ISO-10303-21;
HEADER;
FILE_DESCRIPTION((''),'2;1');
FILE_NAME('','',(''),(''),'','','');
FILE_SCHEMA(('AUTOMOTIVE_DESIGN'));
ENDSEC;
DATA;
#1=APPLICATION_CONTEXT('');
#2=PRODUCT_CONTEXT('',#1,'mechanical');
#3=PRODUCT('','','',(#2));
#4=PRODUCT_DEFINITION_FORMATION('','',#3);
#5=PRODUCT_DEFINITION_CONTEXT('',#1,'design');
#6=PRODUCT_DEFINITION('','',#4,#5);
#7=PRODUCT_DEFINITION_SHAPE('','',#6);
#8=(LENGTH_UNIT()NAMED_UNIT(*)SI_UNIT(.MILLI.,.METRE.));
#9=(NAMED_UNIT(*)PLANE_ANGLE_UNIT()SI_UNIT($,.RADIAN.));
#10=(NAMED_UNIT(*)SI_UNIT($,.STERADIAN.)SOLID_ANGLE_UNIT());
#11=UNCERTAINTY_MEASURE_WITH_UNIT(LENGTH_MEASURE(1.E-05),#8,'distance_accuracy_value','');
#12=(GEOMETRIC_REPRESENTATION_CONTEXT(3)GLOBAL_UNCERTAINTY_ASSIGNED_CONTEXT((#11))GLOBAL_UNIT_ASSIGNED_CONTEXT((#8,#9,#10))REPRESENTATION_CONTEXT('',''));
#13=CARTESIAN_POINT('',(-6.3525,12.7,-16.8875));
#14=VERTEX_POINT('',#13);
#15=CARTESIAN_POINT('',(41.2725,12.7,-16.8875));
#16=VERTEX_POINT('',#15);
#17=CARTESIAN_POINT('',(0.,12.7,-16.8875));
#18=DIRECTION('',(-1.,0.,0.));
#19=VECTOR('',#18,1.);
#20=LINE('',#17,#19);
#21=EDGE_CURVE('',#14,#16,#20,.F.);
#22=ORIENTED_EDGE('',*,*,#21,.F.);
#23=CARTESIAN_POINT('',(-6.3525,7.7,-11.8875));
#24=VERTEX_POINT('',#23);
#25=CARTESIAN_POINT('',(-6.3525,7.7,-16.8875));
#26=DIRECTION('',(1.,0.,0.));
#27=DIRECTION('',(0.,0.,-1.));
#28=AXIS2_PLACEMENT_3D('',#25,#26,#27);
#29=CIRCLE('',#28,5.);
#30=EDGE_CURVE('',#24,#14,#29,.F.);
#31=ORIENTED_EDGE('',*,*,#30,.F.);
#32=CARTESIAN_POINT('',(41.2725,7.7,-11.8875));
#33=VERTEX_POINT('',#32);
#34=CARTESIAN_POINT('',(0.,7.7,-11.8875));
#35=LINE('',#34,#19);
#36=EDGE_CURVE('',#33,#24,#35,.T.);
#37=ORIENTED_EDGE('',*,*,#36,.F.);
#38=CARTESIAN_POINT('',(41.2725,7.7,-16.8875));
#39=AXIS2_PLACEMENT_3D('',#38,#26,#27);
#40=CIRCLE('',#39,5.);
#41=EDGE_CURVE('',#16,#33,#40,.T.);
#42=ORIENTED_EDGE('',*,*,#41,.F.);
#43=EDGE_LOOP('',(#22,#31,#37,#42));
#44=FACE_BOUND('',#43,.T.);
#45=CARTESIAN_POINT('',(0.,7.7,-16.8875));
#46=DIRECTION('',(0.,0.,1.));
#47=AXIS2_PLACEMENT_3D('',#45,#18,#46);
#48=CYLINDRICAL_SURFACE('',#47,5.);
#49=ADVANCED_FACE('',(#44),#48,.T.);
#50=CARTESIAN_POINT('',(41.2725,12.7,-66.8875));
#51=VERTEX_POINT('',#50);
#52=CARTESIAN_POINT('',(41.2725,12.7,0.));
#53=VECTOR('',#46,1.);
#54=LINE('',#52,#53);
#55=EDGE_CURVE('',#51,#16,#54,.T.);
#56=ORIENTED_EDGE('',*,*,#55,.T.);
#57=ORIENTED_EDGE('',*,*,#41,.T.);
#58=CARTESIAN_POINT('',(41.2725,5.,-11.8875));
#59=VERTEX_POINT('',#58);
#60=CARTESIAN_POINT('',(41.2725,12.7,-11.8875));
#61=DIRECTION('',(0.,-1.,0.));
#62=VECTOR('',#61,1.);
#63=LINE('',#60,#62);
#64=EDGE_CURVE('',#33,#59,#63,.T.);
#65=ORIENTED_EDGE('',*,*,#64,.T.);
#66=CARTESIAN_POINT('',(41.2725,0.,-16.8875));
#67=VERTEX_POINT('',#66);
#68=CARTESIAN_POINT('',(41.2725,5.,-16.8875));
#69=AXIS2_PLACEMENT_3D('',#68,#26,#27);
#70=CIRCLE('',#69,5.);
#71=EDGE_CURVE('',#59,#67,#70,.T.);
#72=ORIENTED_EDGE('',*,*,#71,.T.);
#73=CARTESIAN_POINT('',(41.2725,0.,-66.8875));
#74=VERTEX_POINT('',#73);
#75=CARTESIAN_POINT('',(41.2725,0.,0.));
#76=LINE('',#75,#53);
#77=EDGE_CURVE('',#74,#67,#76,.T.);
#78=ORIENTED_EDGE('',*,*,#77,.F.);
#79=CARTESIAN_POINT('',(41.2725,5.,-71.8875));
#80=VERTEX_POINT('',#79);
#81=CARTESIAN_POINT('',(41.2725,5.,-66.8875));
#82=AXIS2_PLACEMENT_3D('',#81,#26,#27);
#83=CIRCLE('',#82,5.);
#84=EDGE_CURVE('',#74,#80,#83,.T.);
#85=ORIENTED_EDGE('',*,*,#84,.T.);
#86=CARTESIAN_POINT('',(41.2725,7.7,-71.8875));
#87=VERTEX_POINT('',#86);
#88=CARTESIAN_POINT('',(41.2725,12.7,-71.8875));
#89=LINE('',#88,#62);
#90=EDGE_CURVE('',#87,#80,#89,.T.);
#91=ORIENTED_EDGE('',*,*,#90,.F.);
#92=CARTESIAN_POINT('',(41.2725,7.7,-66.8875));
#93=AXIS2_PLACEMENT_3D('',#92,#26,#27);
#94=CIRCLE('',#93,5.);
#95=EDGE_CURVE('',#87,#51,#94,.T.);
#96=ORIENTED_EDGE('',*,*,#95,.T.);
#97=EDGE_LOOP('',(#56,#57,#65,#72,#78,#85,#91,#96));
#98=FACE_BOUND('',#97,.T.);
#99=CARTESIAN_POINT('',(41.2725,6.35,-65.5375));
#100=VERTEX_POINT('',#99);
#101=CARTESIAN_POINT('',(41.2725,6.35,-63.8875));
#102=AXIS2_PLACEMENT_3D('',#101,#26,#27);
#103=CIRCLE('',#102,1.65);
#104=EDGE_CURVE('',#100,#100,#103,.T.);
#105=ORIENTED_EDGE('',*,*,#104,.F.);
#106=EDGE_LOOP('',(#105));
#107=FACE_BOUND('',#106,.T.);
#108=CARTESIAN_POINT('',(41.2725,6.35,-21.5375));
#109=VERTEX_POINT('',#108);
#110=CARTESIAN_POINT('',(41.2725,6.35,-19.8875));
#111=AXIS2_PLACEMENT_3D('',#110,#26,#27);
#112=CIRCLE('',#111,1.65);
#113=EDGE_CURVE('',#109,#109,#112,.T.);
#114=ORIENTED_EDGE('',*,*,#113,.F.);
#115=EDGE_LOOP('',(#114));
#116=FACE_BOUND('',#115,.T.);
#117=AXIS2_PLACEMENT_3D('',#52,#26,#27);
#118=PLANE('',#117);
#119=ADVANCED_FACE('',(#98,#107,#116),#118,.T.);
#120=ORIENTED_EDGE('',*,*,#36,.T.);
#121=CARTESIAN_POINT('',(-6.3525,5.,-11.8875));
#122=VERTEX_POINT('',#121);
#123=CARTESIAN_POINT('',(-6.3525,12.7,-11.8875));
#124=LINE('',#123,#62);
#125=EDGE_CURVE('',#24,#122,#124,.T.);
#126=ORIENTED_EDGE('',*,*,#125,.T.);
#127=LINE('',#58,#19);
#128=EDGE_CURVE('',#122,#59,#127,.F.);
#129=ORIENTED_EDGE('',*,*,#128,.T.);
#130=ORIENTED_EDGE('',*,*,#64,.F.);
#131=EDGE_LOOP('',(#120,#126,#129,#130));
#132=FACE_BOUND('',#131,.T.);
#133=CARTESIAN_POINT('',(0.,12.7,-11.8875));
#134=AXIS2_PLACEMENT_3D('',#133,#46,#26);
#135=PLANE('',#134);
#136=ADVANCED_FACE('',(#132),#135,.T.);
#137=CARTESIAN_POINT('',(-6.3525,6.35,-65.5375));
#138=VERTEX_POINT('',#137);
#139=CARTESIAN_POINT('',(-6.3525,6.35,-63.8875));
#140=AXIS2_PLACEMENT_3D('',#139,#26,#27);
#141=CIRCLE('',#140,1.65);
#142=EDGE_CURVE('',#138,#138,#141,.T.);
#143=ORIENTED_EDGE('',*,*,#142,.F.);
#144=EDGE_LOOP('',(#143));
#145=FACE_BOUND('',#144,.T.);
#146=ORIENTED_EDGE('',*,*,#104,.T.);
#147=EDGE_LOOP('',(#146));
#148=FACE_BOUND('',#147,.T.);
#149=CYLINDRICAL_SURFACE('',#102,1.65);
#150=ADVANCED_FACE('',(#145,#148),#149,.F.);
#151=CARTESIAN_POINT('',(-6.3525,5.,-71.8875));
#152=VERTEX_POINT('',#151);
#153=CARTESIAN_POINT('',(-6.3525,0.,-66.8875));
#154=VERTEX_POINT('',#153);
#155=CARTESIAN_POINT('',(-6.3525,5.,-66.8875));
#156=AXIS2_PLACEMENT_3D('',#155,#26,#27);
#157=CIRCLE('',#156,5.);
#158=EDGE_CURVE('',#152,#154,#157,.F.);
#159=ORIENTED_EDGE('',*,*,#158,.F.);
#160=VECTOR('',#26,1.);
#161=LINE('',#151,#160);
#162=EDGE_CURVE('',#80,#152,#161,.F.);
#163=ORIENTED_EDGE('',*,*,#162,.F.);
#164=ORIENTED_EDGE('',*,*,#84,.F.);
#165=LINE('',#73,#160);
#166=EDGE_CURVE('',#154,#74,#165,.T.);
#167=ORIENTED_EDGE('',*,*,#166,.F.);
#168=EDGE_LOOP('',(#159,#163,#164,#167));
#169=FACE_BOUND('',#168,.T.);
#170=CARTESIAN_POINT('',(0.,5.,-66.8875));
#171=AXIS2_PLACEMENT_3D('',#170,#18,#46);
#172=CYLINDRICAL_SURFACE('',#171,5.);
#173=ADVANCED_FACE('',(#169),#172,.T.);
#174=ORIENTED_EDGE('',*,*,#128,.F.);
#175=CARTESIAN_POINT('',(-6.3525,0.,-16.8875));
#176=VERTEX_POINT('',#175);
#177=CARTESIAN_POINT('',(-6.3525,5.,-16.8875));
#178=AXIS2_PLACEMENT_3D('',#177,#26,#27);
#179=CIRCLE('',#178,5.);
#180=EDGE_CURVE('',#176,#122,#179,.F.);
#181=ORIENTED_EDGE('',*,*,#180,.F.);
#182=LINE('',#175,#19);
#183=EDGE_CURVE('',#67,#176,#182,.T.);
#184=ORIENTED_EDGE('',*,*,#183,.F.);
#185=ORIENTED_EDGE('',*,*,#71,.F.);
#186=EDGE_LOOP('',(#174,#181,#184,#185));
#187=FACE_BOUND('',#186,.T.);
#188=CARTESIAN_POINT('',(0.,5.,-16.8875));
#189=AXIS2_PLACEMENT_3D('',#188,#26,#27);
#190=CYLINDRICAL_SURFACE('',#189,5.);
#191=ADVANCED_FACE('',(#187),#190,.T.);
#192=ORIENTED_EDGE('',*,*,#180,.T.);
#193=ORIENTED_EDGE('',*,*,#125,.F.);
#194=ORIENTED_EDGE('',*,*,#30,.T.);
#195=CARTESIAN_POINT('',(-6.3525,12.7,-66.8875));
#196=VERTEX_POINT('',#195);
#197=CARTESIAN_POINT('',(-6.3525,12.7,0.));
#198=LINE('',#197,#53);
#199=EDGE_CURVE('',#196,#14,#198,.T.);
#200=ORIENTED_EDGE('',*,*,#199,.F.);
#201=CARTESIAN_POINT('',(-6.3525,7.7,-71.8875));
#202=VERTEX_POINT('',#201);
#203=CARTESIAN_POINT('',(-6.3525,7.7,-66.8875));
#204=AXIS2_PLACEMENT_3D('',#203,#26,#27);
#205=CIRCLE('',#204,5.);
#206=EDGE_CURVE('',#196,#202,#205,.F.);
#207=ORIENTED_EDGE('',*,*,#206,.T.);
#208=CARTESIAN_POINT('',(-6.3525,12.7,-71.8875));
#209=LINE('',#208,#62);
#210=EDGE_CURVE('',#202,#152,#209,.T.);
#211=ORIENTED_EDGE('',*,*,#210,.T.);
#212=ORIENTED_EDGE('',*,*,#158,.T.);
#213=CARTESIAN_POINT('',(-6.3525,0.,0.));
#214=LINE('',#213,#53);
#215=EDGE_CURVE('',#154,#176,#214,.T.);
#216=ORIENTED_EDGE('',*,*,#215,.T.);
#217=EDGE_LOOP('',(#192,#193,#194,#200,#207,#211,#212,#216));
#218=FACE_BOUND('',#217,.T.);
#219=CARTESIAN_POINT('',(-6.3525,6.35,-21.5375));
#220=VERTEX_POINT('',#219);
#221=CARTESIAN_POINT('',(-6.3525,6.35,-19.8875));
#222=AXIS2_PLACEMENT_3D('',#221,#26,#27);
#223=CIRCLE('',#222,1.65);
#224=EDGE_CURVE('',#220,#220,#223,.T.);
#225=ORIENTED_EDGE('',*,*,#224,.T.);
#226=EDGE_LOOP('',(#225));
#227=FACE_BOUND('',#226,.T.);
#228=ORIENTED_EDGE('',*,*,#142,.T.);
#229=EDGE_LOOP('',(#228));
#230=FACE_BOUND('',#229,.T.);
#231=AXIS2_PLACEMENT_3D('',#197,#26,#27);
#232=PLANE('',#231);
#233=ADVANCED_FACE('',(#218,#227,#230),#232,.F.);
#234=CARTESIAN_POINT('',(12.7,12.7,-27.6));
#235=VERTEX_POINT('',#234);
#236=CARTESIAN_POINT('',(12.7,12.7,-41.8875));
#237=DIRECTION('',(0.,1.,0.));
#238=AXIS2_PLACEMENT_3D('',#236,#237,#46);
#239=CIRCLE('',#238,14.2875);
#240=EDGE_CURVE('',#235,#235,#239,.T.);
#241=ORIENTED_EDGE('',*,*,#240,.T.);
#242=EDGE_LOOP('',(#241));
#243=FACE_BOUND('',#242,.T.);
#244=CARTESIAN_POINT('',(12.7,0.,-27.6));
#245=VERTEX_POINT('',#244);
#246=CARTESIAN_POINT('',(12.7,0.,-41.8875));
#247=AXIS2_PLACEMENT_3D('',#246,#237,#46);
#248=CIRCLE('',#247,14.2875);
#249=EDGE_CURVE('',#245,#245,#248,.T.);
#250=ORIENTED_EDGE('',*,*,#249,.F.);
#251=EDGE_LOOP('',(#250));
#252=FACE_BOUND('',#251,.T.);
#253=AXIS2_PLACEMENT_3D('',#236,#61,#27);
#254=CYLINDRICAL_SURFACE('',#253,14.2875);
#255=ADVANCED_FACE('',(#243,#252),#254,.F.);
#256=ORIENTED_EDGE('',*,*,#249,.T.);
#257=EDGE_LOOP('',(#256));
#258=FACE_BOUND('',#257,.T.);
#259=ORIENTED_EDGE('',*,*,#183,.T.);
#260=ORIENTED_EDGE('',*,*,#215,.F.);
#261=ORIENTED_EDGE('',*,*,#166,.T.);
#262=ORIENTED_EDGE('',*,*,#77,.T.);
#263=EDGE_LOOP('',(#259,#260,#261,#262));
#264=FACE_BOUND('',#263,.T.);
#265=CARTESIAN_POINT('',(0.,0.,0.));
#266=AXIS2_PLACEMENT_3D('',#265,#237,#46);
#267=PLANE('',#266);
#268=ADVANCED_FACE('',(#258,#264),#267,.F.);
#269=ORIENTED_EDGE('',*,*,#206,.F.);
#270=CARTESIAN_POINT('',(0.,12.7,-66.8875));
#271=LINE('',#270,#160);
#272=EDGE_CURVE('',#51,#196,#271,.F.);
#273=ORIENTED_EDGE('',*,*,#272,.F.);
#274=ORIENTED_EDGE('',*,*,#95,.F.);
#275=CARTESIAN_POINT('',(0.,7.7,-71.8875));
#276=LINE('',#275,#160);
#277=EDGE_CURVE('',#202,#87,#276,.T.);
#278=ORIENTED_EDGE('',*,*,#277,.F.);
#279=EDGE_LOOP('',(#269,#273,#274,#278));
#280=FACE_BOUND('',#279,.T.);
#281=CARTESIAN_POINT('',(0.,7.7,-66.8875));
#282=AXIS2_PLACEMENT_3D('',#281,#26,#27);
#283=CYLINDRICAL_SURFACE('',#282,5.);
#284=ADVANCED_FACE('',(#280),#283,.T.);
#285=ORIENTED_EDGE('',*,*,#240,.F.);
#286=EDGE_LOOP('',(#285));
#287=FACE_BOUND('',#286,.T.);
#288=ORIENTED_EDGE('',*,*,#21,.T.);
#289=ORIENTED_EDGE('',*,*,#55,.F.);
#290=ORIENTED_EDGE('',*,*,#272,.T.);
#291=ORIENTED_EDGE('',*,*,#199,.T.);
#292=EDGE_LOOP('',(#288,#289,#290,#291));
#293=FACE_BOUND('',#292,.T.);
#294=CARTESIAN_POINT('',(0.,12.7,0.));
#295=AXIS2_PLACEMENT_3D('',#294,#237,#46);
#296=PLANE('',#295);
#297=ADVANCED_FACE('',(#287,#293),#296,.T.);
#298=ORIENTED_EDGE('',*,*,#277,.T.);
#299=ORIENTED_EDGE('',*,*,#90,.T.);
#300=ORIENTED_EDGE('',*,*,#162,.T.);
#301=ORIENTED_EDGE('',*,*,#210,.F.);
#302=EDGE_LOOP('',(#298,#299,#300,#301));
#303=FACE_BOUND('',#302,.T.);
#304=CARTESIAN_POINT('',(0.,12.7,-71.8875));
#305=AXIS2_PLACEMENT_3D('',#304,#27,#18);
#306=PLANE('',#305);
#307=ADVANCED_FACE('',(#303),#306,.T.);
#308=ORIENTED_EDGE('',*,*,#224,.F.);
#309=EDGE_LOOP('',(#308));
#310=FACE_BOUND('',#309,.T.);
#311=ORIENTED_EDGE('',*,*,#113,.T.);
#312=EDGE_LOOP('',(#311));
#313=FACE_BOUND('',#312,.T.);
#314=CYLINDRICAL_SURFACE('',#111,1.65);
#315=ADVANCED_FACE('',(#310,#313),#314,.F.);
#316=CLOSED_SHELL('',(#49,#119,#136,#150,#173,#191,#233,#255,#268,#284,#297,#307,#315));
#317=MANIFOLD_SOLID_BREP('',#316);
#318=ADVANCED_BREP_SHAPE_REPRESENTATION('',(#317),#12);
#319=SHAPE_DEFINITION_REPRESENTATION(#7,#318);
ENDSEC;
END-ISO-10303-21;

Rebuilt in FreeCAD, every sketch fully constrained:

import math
import FreeCAD as App
import Part
import Sketcher
Q = App.Units.Quantity


def edges_at(feature, points):
    """Names of the edges that pass closest to the given points."""
    edges = feature.Shape.Edges
    near = lambda p: min(range(len(edges)), key=lambda i: edges[i].distToShape(Part.Vertex(*p))[0])
    return sorted({f"Edge{near(p) + 1}" for p in points})

doc = App.newDocument("Part")
body = doc.addObject("PartDesign::Body", "Body")

# Sketch on XZ plane
sketch1 = body.newObject("Sketcher::SketchObject", "Sketch")
sketch1.AttachmentSupport = (doc.getObject("XZ_Plane"), [""])
sketch1.MapMode = "FlatFace"
sketch1.addGeometry(Part.LineSegment(App.Vector(-6, -72, 0), App.Vector(-6, -12, 0)), False)
sketch1.addGeometry(Part.LineSegment(App.Vector(-6, -12, 0), App.Vector(41, -12, 0)), False)
sketch1.addGeometry(Part.LineSegment(App.Vector(41, -12, 0), App.Vector(41, -72, 0)), False)
sketch1.addGeometry(Part.LineSegment(App.Vector(41, -72, 0), App.Vector(-6, -72, 0)), False)
sketch1.addGeometry(Part.ArcOfCircle(Part.Circle(App.Vector(13, -42, 0), App.Vector(0, 0, 1), 14), math.radians(90), math.radians(270)), False)
sketch1.addGeometry(Part.ArcOfCircle(Part.Circle(App.Vector(13, -42, 0), App.Vector(0, 0, 1), 14), math.radians(-90), math.radians(0)), False)
sketch1.addGeometry(Part.ArcOfCircle(Part.Circle(App.Vector(13, -42, 0), App.Vector(0, 0, 1), 14), math.radians(0), math.radians(90)), False)
sketch1.addConstraint(Sketcher.Constraint("Coincident", 0, 2, 1, 1))
sketch1.addConstraint(Sketcher.Constraint("Coincident", 1, 2, 2, 1))
sketch1.addConstraint(Sketcher.Constraint("Coincident", 2, 2, 3, 1))
sketch1.addConstraint(Sketcher.Constraint("Coincident", 3, 2, 0, 1))
sketch1.addConstraint(Sketcher.Constraint("Tangent", 4, 2, 5, 1))
sketch1.addConstraint(Sketcher.Constraint("Tangent", 5, 2, 6, 1))
sketch1.addConstraint(Sketcher.Constraint("Tangent", 6, 2, 4, 1))
sketch1.addConstraint(Sketcher.Constraint("Vertical", 0))
sketch1.addConstraint(Sketcher.Constraint("Horizontal", 1))
sketch1.addConstraint(Sketcher.Constraint("Vertical", 2))
sketch1.addConstraint(Sketcher.Constraint("Horizontal", 3))
sketch1.addConstraint(Sketcher.Constraint("Horizontal", 6, 3, 5, 2))
sketch1.addConstraint(Sketcher.Constraint("Vertical", 6, 3, 4, 2))
sketch1.addConstraint(Sketcher.Constraint("Vertical", 4, 2, 6, 2))
sketch1.addConstraint(Sketcher.Constraint("DistanceY", 0, 1, 0, 2, Q("60 mm")))
sketch1.addConstraint(Sketcher.Constraint("DistanceY", 5, 3, 0, 2, Q("30 mm")))
sketch1.addConstraint(Sketcher.Constraint("DistanceX", -1, 1, 4, 3, Q("12.7 mm")))
sketch1.addConstraint(Sketcher.Constraint("DistanceY", 6, 2, -1, 1, Q("27.6 mm")))
sketch1.addConstraint(Sketcher.Constraint("Radius", 4, Q("14.2875 mm")))
sketch1.addConstraint(Sketcher.Constraint("DistanceX", 1, 1, 1, 2, Q("47.625 mm")))
sketch1.addConstraint(Sketcher.Constraint("DistanceX", 5, 2, 1, 2, Q("14.285 mm")))
pad1 = body.newObject("PartDesign::Pad", "Pad")
pad1.Profile = sketch1
pad1.Length = 12.7
pad1.Reversed = True

# Sketch on YZ plane
sketch2 = body.newObject("Sketcher::SketchObject", "Sketch001")
sketch2.AttachmentSupport = (doc.getObject("YZ_Plane"), [""])
sketch2.MapMode = "FlatFace"
sketch2.AttachmentOffset = App.Placement(App.Vector(0, 0, 41.2725), App.Rotation())
sketch2.addGeometry(Part.Circle(App.Vector(6.3, -63.9, 0), App.Vector(0, 0, 1), 1.6), False)
sketch2.addGeometry(Part.Circle(App.Vector(6.3, -19.9, 0), App.Vector(0, 0, 1), 1.6), False)
sketch2.addConstraint(Sketcher.Constraint("Equal", 0, 1))
sketch2.addConstraint(Sketcher.Constraint("Vertical", 0, 3, 1, 3))
sketch2.addConstraint(Sketcher.Constraint("Diameter", 0, Q("3.3 mm")))
sketch2.addConstraint(Sketcher.Constraint("DistanceY", 0, 3, 1, 3, Q("44 mm")))
sketch2.addConstraint(Sketcher.Constraint("DistanceX", -1, 1, 0, 3, Q("6.35 mm")))
sketch2.addConstraint(Sketcher.Constraint("DistanceY", 0, 3, -1, 1, Q("63.8875 mm")))
doc.recompute()
hole = body.newObject("PartDesign::Hole", "Hole")
hole.Profile = sketch2
hole.ThreadType = "None"
hole.Diameter = 3.3
hole.DepthType = "ThroughAll"
doc.recompute()

fillet = body.newObject("PartDesign::Fillet", "Fillet")
fillet.Base = (hole, edges_at(hole, [
    (17.46, 0, -11.887),
    (17.46, 12.7, -11.887),
    (17.46, 12.7, -71.888),
    (17.46, 0, -71.888),
]))
fillet.Radius = 5

doc.recompute()
